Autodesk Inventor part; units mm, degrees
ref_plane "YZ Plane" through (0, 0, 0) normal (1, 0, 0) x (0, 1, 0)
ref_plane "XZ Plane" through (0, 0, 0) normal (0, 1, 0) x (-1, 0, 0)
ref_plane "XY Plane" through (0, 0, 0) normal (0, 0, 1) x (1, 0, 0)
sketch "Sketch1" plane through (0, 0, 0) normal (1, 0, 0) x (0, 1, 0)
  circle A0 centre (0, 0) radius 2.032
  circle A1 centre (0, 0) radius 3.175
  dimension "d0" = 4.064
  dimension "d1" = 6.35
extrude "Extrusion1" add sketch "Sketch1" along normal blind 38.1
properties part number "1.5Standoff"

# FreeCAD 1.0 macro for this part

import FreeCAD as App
import Part
import Sketcher
from FreeCAD import Vector
Q = App.Units.Quantity

doc = App.newDocument("Part")
params = doc.addObject("Spreadsheet::Sheet", "Params")
for row, (alias, value) in enumerate([
    ("sketch1_diameter", "0.25 in"),
    ("sketch1_diameter2", "0.16 in"),
    ("pad1_length", "1.5 in"),
], start=1):
    params.set(f"A{row}", alias)
    params.set(f"B{row}", "=" + value)
    params.setAlias(f"B{row}", alias)

body = doc.addObject("PartDesign::Body", "Body")

sketch1 = body.newObject("Sketcher::SketchObject", "Sketch")
sketch1.AttachmentSupport = (doc.getObject("YZ_Plane"), [""])
sketch1.MapMode = "FlatFace"
sketch1.addGeometry([
    Part.Circle(Vector(0, 0, 0), Vector(0, 0, 1), 3.175),
    Part.Circle(Vector(0, 0, 0), Vector(0, 0, 1), 2.032),
], False)
sketch1.addConstraint([
    Sketcher.Constraint("Coincident", 0, 3, -1, 1),
    Sketcher.Constraint("Coincident", 1, 3, -1, 1),
    Sketcher.Constraint("Diameter", 0, Q("0.25 in")),
    Sketcher.Constraint("Diameter", 1, Q("0.16 in")),
])
sketch1.setExpression("Constraints[2]", "Params.sketch1_diameter")
sketch1.setExpression("Constraints[3]", "Params.sketch1_diameter2")
pad1 = body.newObject("PartDesign::Pad", "Pad")
pad1.Profile = sketch1
pad1.setExpression("Length", "Params.pad1_length")

doc.recompute()
